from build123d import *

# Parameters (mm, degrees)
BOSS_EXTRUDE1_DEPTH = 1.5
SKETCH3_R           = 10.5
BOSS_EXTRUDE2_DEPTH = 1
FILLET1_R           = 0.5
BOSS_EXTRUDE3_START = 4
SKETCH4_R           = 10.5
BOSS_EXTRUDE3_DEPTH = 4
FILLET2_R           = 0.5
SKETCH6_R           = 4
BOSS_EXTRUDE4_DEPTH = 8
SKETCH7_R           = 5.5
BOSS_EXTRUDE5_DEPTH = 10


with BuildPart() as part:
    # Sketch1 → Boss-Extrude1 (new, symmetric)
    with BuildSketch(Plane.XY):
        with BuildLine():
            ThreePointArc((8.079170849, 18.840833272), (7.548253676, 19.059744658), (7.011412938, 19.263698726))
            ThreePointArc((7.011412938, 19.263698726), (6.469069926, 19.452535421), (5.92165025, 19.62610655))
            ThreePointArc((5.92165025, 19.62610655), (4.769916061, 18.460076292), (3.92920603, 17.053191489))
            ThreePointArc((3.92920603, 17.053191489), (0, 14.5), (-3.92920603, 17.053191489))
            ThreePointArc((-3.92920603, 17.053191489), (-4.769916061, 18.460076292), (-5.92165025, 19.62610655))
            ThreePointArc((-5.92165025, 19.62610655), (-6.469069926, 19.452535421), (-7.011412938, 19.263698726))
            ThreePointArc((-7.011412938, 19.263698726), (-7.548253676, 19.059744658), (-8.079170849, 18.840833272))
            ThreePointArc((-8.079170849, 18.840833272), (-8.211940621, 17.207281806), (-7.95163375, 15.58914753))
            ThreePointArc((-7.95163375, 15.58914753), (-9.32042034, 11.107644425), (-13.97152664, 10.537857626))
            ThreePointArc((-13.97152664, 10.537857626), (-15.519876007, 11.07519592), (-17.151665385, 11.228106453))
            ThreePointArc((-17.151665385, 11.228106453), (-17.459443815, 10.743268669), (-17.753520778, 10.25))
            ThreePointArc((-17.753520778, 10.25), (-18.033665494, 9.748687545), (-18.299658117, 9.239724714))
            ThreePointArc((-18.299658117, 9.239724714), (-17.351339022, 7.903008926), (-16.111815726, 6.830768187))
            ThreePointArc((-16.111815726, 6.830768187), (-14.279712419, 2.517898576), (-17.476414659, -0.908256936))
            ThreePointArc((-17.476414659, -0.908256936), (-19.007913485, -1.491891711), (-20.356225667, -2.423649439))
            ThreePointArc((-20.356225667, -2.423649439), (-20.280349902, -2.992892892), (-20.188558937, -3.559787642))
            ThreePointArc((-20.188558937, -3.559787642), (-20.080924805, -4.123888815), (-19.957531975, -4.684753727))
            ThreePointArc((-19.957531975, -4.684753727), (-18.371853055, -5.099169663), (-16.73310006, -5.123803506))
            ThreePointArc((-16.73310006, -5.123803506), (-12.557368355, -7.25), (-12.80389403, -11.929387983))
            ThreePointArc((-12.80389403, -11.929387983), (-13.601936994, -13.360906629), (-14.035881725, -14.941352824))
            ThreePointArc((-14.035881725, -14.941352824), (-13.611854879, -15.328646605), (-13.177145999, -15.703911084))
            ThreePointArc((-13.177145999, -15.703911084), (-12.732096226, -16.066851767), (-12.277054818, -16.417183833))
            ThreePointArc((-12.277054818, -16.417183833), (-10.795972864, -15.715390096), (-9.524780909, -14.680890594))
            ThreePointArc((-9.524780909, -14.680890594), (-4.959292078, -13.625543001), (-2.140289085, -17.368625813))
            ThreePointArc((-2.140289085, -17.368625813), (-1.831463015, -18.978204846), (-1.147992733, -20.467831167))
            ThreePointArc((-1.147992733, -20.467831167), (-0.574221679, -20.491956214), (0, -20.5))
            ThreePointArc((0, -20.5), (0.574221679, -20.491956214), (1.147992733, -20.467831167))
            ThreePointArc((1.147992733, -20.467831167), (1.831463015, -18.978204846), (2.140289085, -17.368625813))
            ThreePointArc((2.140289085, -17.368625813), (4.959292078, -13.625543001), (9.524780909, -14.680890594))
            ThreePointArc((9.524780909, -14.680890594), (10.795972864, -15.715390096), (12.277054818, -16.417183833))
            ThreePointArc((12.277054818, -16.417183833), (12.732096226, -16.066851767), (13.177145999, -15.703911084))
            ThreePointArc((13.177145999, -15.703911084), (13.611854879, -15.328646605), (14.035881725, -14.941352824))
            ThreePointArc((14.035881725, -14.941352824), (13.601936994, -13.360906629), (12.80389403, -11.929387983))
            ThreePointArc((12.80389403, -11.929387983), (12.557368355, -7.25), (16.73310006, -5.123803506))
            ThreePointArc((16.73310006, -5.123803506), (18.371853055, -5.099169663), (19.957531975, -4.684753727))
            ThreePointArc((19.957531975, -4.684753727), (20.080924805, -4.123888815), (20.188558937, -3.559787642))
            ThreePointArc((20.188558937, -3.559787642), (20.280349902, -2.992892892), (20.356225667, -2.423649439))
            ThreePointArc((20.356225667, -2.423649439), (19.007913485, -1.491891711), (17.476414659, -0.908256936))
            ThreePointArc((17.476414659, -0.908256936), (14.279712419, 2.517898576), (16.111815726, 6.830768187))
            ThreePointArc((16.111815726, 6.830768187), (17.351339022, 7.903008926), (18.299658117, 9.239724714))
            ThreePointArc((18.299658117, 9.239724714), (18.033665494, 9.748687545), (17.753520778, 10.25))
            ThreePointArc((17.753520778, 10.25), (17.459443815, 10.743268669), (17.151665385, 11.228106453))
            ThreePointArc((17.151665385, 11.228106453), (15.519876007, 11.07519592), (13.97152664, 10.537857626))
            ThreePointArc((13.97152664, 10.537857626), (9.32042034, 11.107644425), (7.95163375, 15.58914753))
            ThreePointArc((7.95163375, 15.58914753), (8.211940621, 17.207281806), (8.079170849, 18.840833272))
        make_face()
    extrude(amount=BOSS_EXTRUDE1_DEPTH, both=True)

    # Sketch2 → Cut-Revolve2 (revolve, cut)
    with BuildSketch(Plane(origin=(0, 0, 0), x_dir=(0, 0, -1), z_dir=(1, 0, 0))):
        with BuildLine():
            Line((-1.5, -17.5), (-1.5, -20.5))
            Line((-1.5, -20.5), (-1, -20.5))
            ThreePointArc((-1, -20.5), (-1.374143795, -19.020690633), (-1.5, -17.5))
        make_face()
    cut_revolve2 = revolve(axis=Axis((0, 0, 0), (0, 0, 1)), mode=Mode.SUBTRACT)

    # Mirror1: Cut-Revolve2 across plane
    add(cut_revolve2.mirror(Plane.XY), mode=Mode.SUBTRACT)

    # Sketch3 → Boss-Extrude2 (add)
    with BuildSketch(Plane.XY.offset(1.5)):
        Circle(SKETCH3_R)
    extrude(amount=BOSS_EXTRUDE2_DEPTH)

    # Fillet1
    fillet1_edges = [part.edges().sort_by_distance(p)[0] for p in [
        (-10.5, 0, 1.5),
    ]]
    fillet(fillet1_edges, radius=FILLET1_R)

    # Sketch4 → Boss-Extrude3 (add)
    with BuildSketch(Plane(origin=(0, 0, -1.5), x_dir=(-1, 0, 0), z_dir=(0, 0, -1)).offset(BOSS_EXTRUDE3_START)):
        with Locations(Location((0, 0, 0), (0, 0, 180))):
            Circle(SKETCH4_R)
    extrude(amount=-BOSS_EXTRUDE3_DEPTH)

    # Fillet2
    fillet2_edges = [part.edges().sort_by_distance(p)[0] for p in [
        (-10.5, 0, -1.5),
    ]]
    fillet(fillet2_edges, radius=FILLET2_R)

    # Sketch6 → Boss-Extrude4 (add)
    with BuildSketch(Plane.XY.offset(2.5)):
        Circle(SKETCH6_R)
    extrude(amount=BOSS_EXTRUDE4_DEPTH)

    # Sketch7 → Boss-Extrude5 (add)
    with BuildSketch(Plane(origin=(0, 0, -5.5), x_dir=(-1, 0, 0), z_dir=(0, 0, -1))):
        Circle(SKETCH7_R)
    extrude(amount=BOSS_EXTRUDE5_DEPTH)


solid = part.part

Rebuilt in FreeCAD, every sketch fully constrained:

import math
import FreeCAD as App
import Part
import Sketcher


def edges_at(feature, points):
    """Names of the edges that pass closest to the given points."""
    edges = feature.Shape.Edges
    near = lambda p: min(range(len(edges)), key=lambda i: edges[i].distToShape(Part.Vertex(*p))[0])
    return sorted({f"Edge{near(p) + 1}" for p in points})

doc = App.newDocument("Part")
body = doc.addObject("PartDesign::Body", "Body")

sketch1 = body.newObject("Sketcher::SketchObject", "Sketch")
sketch1.AttachmentSupport = (doc.getObject("XY_Plane"), [""])
sketch1.MapMode = "FlatFace"
sketch1.addGeometry([
    Part.ArcOfCircle(Part.Circle(App.Vector(0, 0, 0), App.Vector(0, 0, 1), 20.5), math.radians(66.789777), math.radians(70)),
    Part.ArcOfCircle(Part.Circle(App.Vector(0, 0.000001, 0), App.Vector(0, 0, 1), 20.499999), math.radians(70), math.radians(73.210223)),
    Part.ArcOfCircle(Part.Circle(App.Vector(10.168715, 14.279291, 0), App.Vector(0, 0, 1), 6.828323), math.radians(128.460702), math.radians(156.031487)),
    Part.ArcOfCircle(Part.Circle(App.Vector(0, 18.8, 0), App.Vector(0, 0, 1), 4.3), math.radians(-156.031487), math.radians(-23.968513)),
    Part.ArcOfCircle(Part.Circle(App.Vector(-10.168715, 14.279291, 0), App.Vector(0, 0, 1), 6.828323), math.radians(23.968513), math.radians(51.539298)),
    Part.ArcOfCircle(Part.Circle(App.Vector(0, 0.000001, 0), App.Vector(0, 0, 1), 20.499999), math.radians(106.789777), math.radians(110)),
    Part.ArcOfCircle(Part.Circle(App.Vector(0, 0, 0), App.Vector(0, 0, 1), 20.5), math.radians(110), math.radians(113.210223)),
    Part.ArcOfCircle(Part.Circle(App.Vector(-1.388863, 17.474895, 0), App.Vector(0, 0, 1), 6.828324), math.radians(168.460702), math.radians(196.031487)),
    Part.ArcOfCircle(Part.Circle(App.Vector(-12.084407, 14.401636, 0), App.Vector(0, 0, 1), 4.3), math.radians(-116.031487), math.radians(16.031487)),
    Part.ArcOfCircle(Part.Circle(App.Vector(-16.968239, 4.402247, 0), App.Vector(0, 0, 1), 6.828323), math.radians(63.968513), math.radians(91.539298)),
    Part.ArcOfCircle(Part.Circle(App.Vector(-0.000001, 0.000001, 0), App.Vector(0, 0, 1), 20.499999), math.radians(146.789777), math.radians(150)),
    Part.ArcOfCircle(Part.Circle(App.Vector(0, 0, 0), App.Vector(0, 0, 1), 20.5), math.radians(150), math.radians(153.210223)),
    Part.ArcOfCircle(Part.Circle(App.Vector(-12.296577, 12.493802, 0), App.Vector(0, 0, 1), 6.828323), math.radians(-151.539298), math.radians(-123.968513)),
    Part.ArcOfCircle(Part.Circle(App.Vector(-18.514386, 3.264586, 0), App.Vector(0, 0, 1), 4.3), math.radians(-76.031487), math.radians(56.031487)),
    Part.ArcOfCircle(Part.Circle(App.Vector(-15.828135, -7.534657, 0), App.Vector(0, 0, 1), 6.828324), math.radians(103.968513), math.radians(131.539298)),
    Part.ArcOfCircle(Part.Circle(App.Vector(0, 0, 0), App.Vector(0, 0, 1), 20.5), math.radians(-173.210223), math.radians(-170)),
    Part.ArcOfCircle(Part.Circle(App.Vector(0.000002, 0, 0), App.Vector(0, 0, 1), 20.500002), math.radians(-170), math.radians(-166.789777)),
    Part.ArcOfCircle(Part.Circle(App.Vector(-17.450586, 1.66672, 0), App.Vector(0, 0, 1), 6.828324), math.radians(-111.539298), math.radians(-83.968513)),
    Part.ArcOfCircle(Part.Circle(App.Vector(-16.281278, -9.4, 0), App.Vector(0, 0, 1), 4.3), math.radians(-36.031487), math.radians(96.031487)),
    Part.ArcOfCircle(Part.Circle(App.Vector(-7.281871, -15.946011, 0), App.Vector(0, 0, 1), 6.828323), math.radians(143.968513), math.radians(171.539298)),
    Part.ArcOfCircle(Part.Circle(App.Vector(0.000001, 0.000001, 0), App.Vector(0, 0, 1), 20.500001), math.radians(-133.210223), math.radians(-130)),
    Part.ArcOfCircle(Part.Circle(App.Vector(0, 0, 0), App.Vector(0, 0, 1), 20.5), math.radians(-130), math.radians(-126.789777)),
    Part.ArcOfCircle(Part.Circle(App.Vector(-14.439272, -9.940239, 0), App.Vector(0, 0, 1), 6.828324), math.radians(-71.539298), math.radians(-43.968513)),
    Part.ArcOfCircle(Part.Circle(App.Vector(-6.429979, -17.666221, 0), App.Vector(0, 0, 1), 4.3), math.radians(3.968513), math.radians(136.031487)),
    Part.ArcOfCircle(Part.Circle(App.Vector(4.671662, -16.89605, 0), App.Vector(0, 0, 1), 6.828323), math.radians(-176.031487), math.radians(-148.460702)),
    Part.ArcOfCircle(Part.Circle(App.Vector(0, -0.000001, 0), App.Vector(0, 0, 1), 20.499999), math.radians(-93.210223), math.radians(-90)),
    Part.ArcOfCircle(Part.Circle(App.Vector(0, -0.000001, 0), App.Vector(0, 0, 1), 20.499999), math.radians(-90), math.radians(-86.789777)),
    Part.ArcOfCircle(Part.Circle(App.Vector(-4.671662, -16.89605, 0), App.Vector(0, 0, 1), 6.828323), math.radians(-31.539298), math.radians(-3.968513)),
    Part.ArcOfCircle(Part.Circle(App.Vector(6.429979, -17.666221, 0), App.Vector(0, 0, 1), 4.3), math.radians(43.968513), math.radians(176.031487)),
    Part.ArcOfCircle(Part.Circle(App.Vector(14.439272, -9.940239, 0), App.Vector(0, 0, 1), 6.828324), math.radians(-136.031487), math.radians(-108.460702)),
    Part.ArcOfCircle(Part.Circle(App.Vector(0, 0, 0), App.Vector(0, 0, 1), 20.5), math.radians(-53.210223), math.radians(-50)),
    Part.ArcOfCircle(Part.Circle(App.Vector(-0.000001, 0.000001, 0), App.Vector(0, 0, 1), 20.500001), math.radians(-50), math.radians(-46.789777)),
    Part.ArcOfCircle(Part.Circle(App.Vector(7.281871, -15.946011, 0), App.Vector(0, 0, 1), 6.828323), math.radians(8.460702), math.radians(36.031487)),
    Part.ArcOfCircle(Part.Circle(App.Vector(16.281278, -9.4, 0), App.Vector(0, 0, 1), 4.3), math.radians(83.968513), math.radians(216.031487)),
    Part.ArcOfCircle(Part.Circle(App.Vector(17.450586, 1.66672, 0), App.Vector(0, 0, 1), 6.828324), math.radians(-96.031487), math.radians(-68.460702)),
    Part.ArcOfCircle(Part.Circle(App.Vector(-0.000002, 0, 0), App.Vector(0, 0, 1), 20.500002), math.radians(-13.210223), math.radians(-10)),
    Part.ArcOfCircle(Part.Circle(App.Vector(0, 0, 0), App.Vector(0, 0, 1), 20.5), math.radians(-10), math.radians(-6.789777)),
    Part.ArcOfCircle(Part.Circle(App.Vector(15.828135, -7.534657, 0), App.Vector(0, 0, 1), 6.828324), math.radians(48.460702), math.radians(76.031487)),
    Part.ArcOfCircle(Part.Circle(App.Vector(18.514386, 3.264586, 0), App.Vector(0, 0, 1), 4.3), math.radians(123.968513), math.radians(256.031487)),
    Part.ArcOfCircle(Part.Circle(App.Vector(12.296577, 12.493802, 0), App.Vector(0, 0, 1), 6.828323), math.radians(-56.031487), math.radians(-28.460702)),
    Part.ArcOfCircle(Part.Circle(App.Vector(0, 0, 0), App.Vector(0, 0, 1), 20.5), math.radians(26.789777), math.radians(30)),
    Part.ArcOfCircle(Part.Circle(App.Vector(0.000001, 0.000001, 0), App.Vector(0, 0, 1), 20.499999), math.radians(30), math.radians(33.210223)),
    Part.ArcOfCircle(Part.Circle(App.Vector(16.968239, 4.402247, 0), App.Vector(0, 0, 1), 6.828323), math.radians(88.460702), math.radians(116.031487)),
    Part.ArcOfCircle(Part.Circle(App.Vector(12.084407, 14.401636, 0), App.Vector(0, 0, 1), 4.3), math.radians(163.968513), math.radians(296.031487)),
    Part.ArcOfCircle(Part.Circle(App.Vector(1.388863, 17.474895, 0), App.Vector(0, 0, 1), 6.828324), math.radians(-16.031487), math.radians(11.539298)),
], False)
sketch1.addConstraint([
    Sketcher.Constraint("Tangent", 0, 2, 1, 1),
    Sketcher.Constraint("Coincident", 1, 2, 2, 1),
    Sketcher.Constraint("Tangent", 2, 2, 3, 2),
    Sketcher.Constraint("Tangent", 3, 1, 4, 1),
    Sketcher.Constraint("Coincident", 4, 2, 5, 1),
    Sketcher.Constraint("Tangent", 5, 2, 6, 1),
    Sketcher.Constraint("Coincident", 6, 2, 7, 1),
    Sketcher.Constraint("Tangent", 7, 2, 8, 2),
    Sketcher.Constraint("Tangent", 8, 1, 9, 1),
    Sketcher.Constraint("Coincident", 9, 2, 10, 1),
    Sketcher.Constraint("Tangent", 10, 2, 11, 1),
    Sketcher.Constraint("Coincident", 11, 2, 12, 1),
    Sketcher.Constraint("Tangent", 12, 2, 13, 2),
    Sketcher.Constraint("Tangent", 13, 1, 14, 1),
    Sketcher.Constraint("Coincident", 14, 2, 15, 1),
    Sketcher.Constraint("Tangent", 15, 2, 16, 1),
    Sketcher.Constraint("Coincident", 16, 2, 17, 1),
    Sketcher.Constraint("Tangent", 17, 2, 18, 2),
    Sketcher.Constraint("Tangent", 18, 1, 19, 1),
    Sketcher.Constraint("Coincident", 19, 2, 20, 1),
    Sketcher.Constraint("Tangent", 20, 2, 21, 1),
    Sketcher.Constraint("Coincident", 21, 2, 22, 1),
    Sketcher.Constraint("Tangent", 22, 2, 23, 2),
    Sketcher.Constraint("Tangent", 23, 1, 24, 1),
    Sketcher.Constraint("Coincident", 24, 2, 25, 1),
    Sketcher.Constraint("Tangent", 25, 2, 26, 1),
    Sketcher.Constraint("Coincident", 26, 2, 27, 1),
    Sketcher.Constraint("Tangent", 27, 2, 28, 2),
    Sketcher.Constraint("Tangent", 28, 1, 29, 1),
    Sketcher.Constraint("Coincident", 29, 2, 30, 1),
    Sketcher.Constraint("Tangent", 30, 2, 31, 1),
    Sketcher.Constraint("Coincident", 31, 2, 32, 1),
    Sketcher.Constraint("Tangent", 32, 2, 33, 2),
    Sketcher.Constraint("Tangent", 33, 1, 34, 1),
    Sketcher.Constraint("Coincident", 34, 2, 35, 1),
    Sketcher.Constraint("Tangent", 35, 2, 36, 1),
    Sketcher.Constraint("Coincident", 36, 2, 37, 1),
    Sketcher.Constraint("Tangent", 37, 2, 38, 2),
    Sketcher.Constraint("Tangent", 38, 1, 39, 1),
    Sketcher.Constraint("Coincident", 39, 2, 40, 1),
    Sketcher.Constraint("Tangent", 40, 2, 41, 1),
    Sketcher.Constraint("Coincident", 41, 2, 42, 1),
    Sketcher.Constraint("Tangent", 42, 2, 43, 2),
    Sketcher.Constraint("Tangent", 43, 1, 44, 1),
    Sketcher.Constraint("Coincident", 44, 2, 0, 1),
    Sketcher.Constraint("Coincident", 0, 3, -1, 1),
    Sketcher.Constraint("Coincident", 5, 3, -1, 1),
    Sketcher.Constraint("Coincident", 10, 3, -1, 1),
    Sketcher.Constraint("Coincident", 15, 3, -1, 1),
    Sketcher.Constraint("Coincident", 20, 3, -1, 1),
    Sketcher.Constraint("Coincident", 25, 3, -1, 1),
    Sketcher.Constraint("Coincident", 30, 3, -1, 1),
    Sketcher.Constraint("Coincident", 35, 3, -1, 1),
    Sketcher.Constraint("Coincident", 40, 3, -1, 1),
    Sketcher.Constraint("Equal", 0, 1),
    Sketcher.Constraint("Equal", 2, 4),
    Sketcher.Constraint("Equal", 1, 5),
    Sketcher.Constraint("Equal", 5, 6),
    Sketcher.Constraint("Equal", 4, 7),
    Sketcher.Constraint("Equal", 3, 8),
    Sketcher.Constraint("Equal", 7, 9),
    Sketcher.Constraint("Equal", 6, 10),
    Sketcher.Constraint("Equal", 10, 11),
    Sketcher.Constraint("Equal", 9, 12),
    Sketcher.Constraint("Equal", 8, 13),
    Sketcher.Constraint("Equal", 12, 14),
    Sketcher.Constraint("Equal", 11, 15),
    Sketcher.Constraint("Equal", 15, 16),
    Sketcher.Constraint("Equal", 14, 17),
    Sketcher.Constraint("Equal", 13, 18),
    Sketcher.Constraint("Equal", 17, 19),
    Sketcher.Constraint("Equal", 16, 20),
    Sketcher.Constraint("Equal", 20, 21),
    Sketcher.Constraint("Equal", 19, 22),
    Sketcher.Constraint("Equal", 18, 23),
    Sketcher.Constraint("Equal", 22, 24),
    Sketcher.Constraint("Equal", 21, 25),
    Sketcher.Constraint("Equal", 25, 26),
    Sketcher.Constraint("Equal", 24, 27),
    Sketcher.Constraint("Equal", 23, 28),
    Sketcher.Constraint("Equal", 27, 29),
    Sketcher.Constraint("Equal", 26, 30),
    Sketcher.Constraint("Equal", 30, 31),
    Sketcher.Constraint("Equal", 29, 32),
    Sketcher.Constraint("Equal", 28, 33),
    Sketcher.Constraint("Equal", 32, 34),
    Sketcher.Constraint("Equal", 31, 35),
    Sketcher.Constraint("Equal", 35, 36),
    Sketcher.Constraint("Equal", 34, 37),
    Sketcher.Constraint("Equal", 33, 38),
    Sketcher.Constraint("Equal", 37, 39),
    Sketcher.Constraint("Equal", 36, 40),
    Sketcher.Constraint("Equal", 40, 41),
    Sketcher.Constraint("Equal", 39, 42),
    Sketcher.Constraint("Equal", 38, 43),
    Sketcher.Constraint("Equal", 42, 44),
    Sketcher.Constraint("Symmetric", 2, 3, 4, 3, -2),
    Sketcher.Constraint("Symmetric", 24, 3, 27, 3, -2),
    Sketcher.Constraint("Symmetric", 22, 3, 29, 3, -2),
    Sketcher.Constraint("Symmetric", 19, 3, 32, 3, -2),
    Sketcher.Constraint("Symmetric", 17, 3, 34, 3, -2),
    Sketcher.Constraint("Symmetric", 14, 3, 37, 3, -2),
    Sketcher.Constraint("Symmetric", 12, 3, 39, 3, -2),
    Sketcher.Constraint("Symmetric", 9, 3, 42, 3, -2),
    Sketcher.Constraint("Symmetric", 7, 3, 44, 3, -2),
    Sketcher.Constraint("PointOnObject", 25, 2, -2),
    Sketcher.Constraint("Horizontal", 0, 2, 5, 2),
    Sketcher.Constraint("Horizontal", 20, 2, 30, 2),
    Sketcher.Constraint("Horizontal", 15, 2, 35, 2),
    Sketcher.Constraint("Horizontal", 10, 2, 40, 2),
    Sketcher.Constraint("Radius", 0, 20.5),
    Sketcher.Constraint("Radius", 3, 4.3),
    Sketcher.Constraint("DistanceY", -1, 1, 3, 3, 18.8),
    Sketcher.Constraint("DistanceY", 18, 3, -1, 1, 9.4),
    Sketcher.Constraint("DistanceY", -1, 1, 10, 2, 10.25),
    Sketcher.Constraint("Radius", 2, 6.828323),
    Sketcher.Constraint("DistanceY", -1, 1, 0, 2, 19.263699),
    Sketcher.Constraint("DistanceX", 17, 2, -1, 1, 16.7331),
    Sketcher.Constraint("DistanceY", -1, 1, 2, 3, 14.279291),
    Sketcher.Constraint("DistanceX", 9, 3, -1, 1, 16.968239),
    Sketcher.Constraint("DistanceY", -1, 1, 17, 3, 1.66672),
    Sketcher.Constraint("DistanceX", 19, 3, -1, 1, 7.281871),
    Sketcher.Constraint("DistanceX", 22, 3, -1, 1, 14.439272),
    Sketcher.Constraint("DistanceY", 22, 3, -1, 1, 9.940239),
    Sketcher.Constraint("DistanceX", 23, 3, -1, 1, 6.429979),
    Sketcher.Constraint("DistanceX", -1, 1, 24, 3, 4.671662),
    Sketcher.Constraint("DistanceX", 6, 2, -1, 1, 8.079171),
    Sketcher.Constraint("DistanceX", 11, 2, -1, 1, 18.299658),
    Sketcher.Constraint("DistanceY", -1, 1, 12, 2, 6.830768),
    Sketcher.Constraint("DistanceY", 14, 2, -1, 1, 2.423649),
    Sketcher.Constraint("DistanceX", 15, 2, -1, 1, 20.188559),
    Sketcher.Constraint("DistanceY", 20, 2, -1, 1, 15.703911),
    Sketcher.Constraint("DistanceX", 7, 3, -1, 1, 1.388863),
    Sketcher.Constraint("DistanceX", 8, 3, -1, 1, 12.084407),
    Sketcher.Constraint("DistanceX", 12, 3, -1, 1, 12.296577),
])
pad1 = body.newObject("PartDesign::Pad", "Pad")
pad1.Profile = sketch1
pad1.Length = 3
pad1.Midplane = True

sketch2 = body.newObject("Sketcher::SketchObject", "Sketch001")
sketch2.AttachmentSupport = (doc.getObject("YZ_Plane"), [""])
sketch2.MapMode = "FlatFace"
sketch2.addGeometry([
    Part.LineSegment(App.Vector(-17.5, 1.5, 0), App.Vector(-20.5, 1.5, 0)),
    Part.LineSegment(App.Vector(-20.5, 1.5, 0), App.Vector(-20.5, 1, 0)),
    Part.ArcOfCircle(Part.Circle(App.Vector(-17.5, -7.75, 0), App.Vector(0, 0, 1), 9.25), math.radians(90), math.radians(108.924644)),
], False)
sketch2.addConstraint([
    Sketcher.Constraint("Coincident", 0, 2, 1, 1),
    Sketcher.Constraint("Coincident", 1, 2, 2, 2),
    Sketcher.Constraint("Tangent", 2, 1, 0, 1),
    Sketcher.Constraint("Horizontal", 0),
    Sketcher.Constraint("Vertical", 1),
    Sketcher.Constraint("DistanceX", 0, 2, 0, 1, 3.0),
    Sketcher.Constraint("Radius", 2, 9.25),
    Sketcher.Constraint("DistanceY", -1, 1, 1, 2, 1.0),
    Sketcher.Constraint("DistanceX", 2, 3, -1, 1, 17.5),
])
groove = body.newObject("PartDesign::Groove", "Groove")
groove.Profile = sketch2
groove.ReferenceAxis = (sketch2, ["V_Axis"])
groove.Angle = 360
doc.recompute()

mirrored = body.newObject("PartDesign::Mirrored", "Mirrored")
mirrored.Originals = [groove]
mirrored.MirrorPlane = (doc.getObject("XY_Plane"), [""])
body.Tip = mirrored

sketch3 = body.newObject("Sketcher::SketchObject", "Sketch002")
sketch3.AttachmentSupport = (doc.getObject("XY_Plane"), [""])
sketch3.MapMode = "FlatFace"
sketch3.AttachmentOffset = App.Placement(App.Vector(0, 0, 1.5), App.Rotation())
sketch3.addGeometry(Part.Circle(App.Vector(0, 0, 0), App.Vector(0, 0, 1), 10.5), False)
sketch3.addConstraint([
    Sketcher.Constraint("Coincident", 0, 3, -1, 1),
    Sketcher.Constraint("Diameter", 0, 21.0),
])
pad2 = body.newObject("PartDesign::Pad", "Pad001")
pad2.Profile = sketch3
pad2.Length = 1
doc.recompute()

fillet = body.newObject("PartDesign::Fillet", "Fillet")
fillet.Base = (pad2, edges_at(pad2, [(-10.5, 0, 1.5)]))
fillet.Radius = 0.5

sketch4 = body.newObject("Sketcher::SketchObject", "Sketch003")
sketch4.AttachmentSupport = (doc.getObject("XY_Plane"), [""])
sketch4.MapMode = "FlatFace"
sketch4.AttachmentOffset = App.Placement(App.Vector(0, 0, -5.5), App.Rotation())
sketch4.addGeometry(Part.Circle(App.Vector(0, 0, 0), App.Vector(0, 0, 1), 10.5), False)
sketch4.addConstraint([
    Sketcher.Constraint("Coincident", 0, 3, -1, 1),
    Sketcher.Constraint("Diameter", 0, 21.0),
])
pad3 = body.newObject("PartDesign::Pad", "Pad002")
pad3.Profile = sketch4
pad3.Length = 4
doc.recompute()

fillet2 = body.newObject("PartDesign::Fillet", "Fillet001")
fillet2.Base = (pad3, edges_at(pad3, [(-10.5, 0, -1.5)]))
fillet2.Radius = 0.5

sketch5 = body.newObject("Sketcher::SketchObject", "Sketch004")
sketch5.AttachmentSupport = (doc.getObject("XY_Plane"), [""])
sketch5.MapMode = "FlatFace"
sketch5.AttachmentOffset = App.Placement(App.Vector(0, 0, 2.5), App.Rotation())
sketch5.addGeometry(Part.Circle(App.Vector(0, 0, 0), App.Vector(0, 0, 1), 4), False)
sketch5.addConstraint([
    Sketcher.Constraint("Coincident", 0, 3, -1, 1),
    Sketcher.Constraint("Diameter", 0, 8.0),
])
pad4 = body.newObject("PartDesign::Pad", "Pad003")
pad4.Profile = sketch5
pad4.Length = 8

sketch6 = body.newObject("Sketcher::SketchObject", "Sketch005")
sketch6.AttachmentSupport = (doc.getObject("XY_Plane"), [""])
sketch6.MapMode = "FlatFace"
sketch6.AttachmentOffset = App.Placement(App.Vector(0, 0, -5.5), App.Rotation())
sketch6.addGeometry(Part.Circle(App.Vector(0, 0, 0), App.Vector(0, 0, 1), 5.5), False)
sketch6.addConstraint([
    Sketcher.Constraint("Coincident", 0, 3, -1, 1),
    Sketcher.Constraint("Diameter", 0, 11.0),
])
pad5 = body.newObject("PartDesign::Pad", "Pad004")
pad5.Profile = sketch6
pad5.Length = 10
pad5.Reversed = True

doc.recompute()
